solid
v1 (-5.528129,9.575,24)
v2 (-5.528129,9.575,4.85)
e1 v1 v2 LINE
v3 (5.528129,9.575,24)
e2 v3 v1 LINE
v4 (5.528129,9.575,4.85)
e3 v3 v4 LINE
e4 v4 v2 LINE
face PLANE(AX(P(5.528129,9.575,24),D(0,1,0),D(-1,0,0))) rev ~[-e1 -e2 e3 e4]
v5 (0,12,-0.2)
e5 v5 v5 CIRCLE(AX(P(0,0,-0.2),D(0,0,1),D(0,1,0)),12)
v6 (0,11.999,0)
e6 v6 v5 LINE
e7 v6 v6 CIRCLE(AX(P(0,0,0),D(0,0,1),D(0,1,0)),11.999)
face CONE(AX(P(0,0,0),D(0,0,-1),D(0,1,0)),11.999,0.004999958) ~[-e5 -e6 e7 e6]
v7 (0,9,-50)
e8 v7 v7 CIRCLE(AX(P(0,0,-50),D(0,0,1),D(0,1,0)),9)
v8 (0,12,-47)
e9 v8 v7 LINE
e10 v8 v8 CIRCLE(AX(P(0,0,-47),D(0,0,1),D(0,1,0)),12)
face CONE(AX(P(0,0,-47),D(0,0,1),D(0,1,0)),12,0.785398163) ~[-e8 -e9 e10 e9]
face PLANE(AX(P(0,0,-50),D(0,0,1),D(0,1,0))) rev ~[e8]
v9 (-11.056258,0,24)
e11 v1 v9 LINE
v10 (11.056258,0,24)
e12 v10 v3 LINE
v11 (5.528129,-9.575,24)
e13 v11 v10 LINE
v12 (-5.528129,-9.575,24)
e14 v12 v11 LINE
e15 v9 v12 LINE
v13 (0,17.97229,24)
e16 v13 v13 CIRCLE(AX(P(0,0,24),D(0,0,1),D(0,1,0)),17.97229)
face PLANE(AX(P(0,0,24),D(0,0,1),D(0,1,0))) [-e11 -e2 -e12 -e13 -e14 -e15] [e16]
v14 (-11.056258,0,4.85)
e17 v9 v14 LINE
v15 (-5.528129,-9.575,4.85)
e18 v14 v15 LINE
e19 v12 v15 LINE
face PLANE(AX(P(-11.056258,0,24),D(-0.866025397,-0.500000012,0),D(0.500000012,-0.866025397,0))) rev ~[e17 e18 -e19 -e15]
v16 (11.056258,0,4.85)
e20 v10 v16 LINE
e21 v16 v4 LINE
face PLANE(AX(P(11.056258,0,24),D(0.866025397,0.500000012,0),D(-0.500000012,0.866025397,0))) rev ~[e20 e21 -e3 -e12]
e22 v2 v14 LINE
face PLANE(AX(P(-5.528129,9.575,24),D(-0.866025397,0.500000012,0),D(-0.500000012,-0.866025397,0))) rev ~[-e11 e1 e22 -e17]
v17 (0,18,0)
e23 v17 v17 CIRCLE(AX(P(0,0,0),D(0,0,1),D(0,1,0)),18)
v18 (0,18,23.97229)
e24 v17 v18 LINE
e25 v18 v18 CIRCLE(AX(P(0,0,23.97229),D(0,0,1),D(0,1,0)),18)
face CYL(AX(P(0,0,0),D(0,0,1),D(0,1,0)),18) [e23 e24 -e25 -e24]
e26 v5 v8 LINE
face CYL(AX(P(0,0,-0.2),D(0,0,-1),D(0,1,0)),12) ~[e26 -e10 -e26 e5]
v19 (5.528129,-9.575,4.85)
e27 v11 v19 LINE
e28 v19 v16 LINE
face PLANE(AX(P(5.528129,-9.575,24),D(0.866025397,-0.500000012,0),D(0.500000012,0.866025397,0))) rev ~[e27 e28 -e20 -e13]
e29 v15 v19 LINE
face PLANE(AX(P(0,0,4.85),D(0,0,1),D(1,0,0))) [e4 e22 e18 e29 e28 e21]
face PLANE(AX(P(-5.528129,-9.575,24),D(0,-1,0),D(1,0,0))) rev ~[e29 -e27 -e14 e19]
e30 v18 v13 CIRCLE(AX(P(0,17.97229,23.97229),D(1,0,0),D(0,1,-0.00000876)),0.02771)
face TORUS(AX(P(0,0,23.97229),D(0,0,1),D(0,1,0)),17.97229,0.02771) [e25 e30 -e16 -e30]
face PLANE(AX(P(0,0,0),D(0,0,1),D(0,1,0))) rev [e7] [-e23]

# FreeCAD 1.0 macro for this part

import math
import FreeCAD as App
import Part
import Sketcher
Q = App.Units.Quantity


def add_polygon(sketch, points):
    """Adds a closed chain of lines whose ends are joined by coincident constraints."""
    first, n = sketch.GeometryCount, len(points)
    for a, b in zip(points, points[1:] + points[:1]):
        sketch.addGeometry(Part.LineSegment(App.Vector(*a, 0), App.Vector(*b, 0)), False)
    for i in range(n):
        sketch.addConstraint(Sketcher.Constraint("Coincident", first + i, 2, first + (i + 1) % n, 1))

doc = App.newDocument("Part")
body = doc.addObject("PartDesign::Body", "Body")

sketch1 = body.newObject("Sketcher::SketchObject", "Sketch")
sketch1.AttachmentSupport = (doc.getObject("YZ_Plane"), [""])
sketch1.MapMode = "FlatFace"
sketch1.addGeometry([
    Part.LineSegment(App.Vector(11.999, 0, 0), App.Vector(18, 0, 0)),
    Part.LineSegment(App.Vector(18, 0, 0), App.Vector(18, 23.972, 0)),
    Part.ArcOfCircle(Part.Circle(App.Vector(17.972, 23.972, 0), App.Vector(0, 0, 1), 0.028), math.radians(0), math.radians(90)),
    Part.LineSegment(App.Vector(17.972, 24, 0), App.Vector(0, 24, 0)),
    Part.LineSegment(App.Vector(0, 24, 0), App.Vector(0, -50, 0)),
    Part.LineSegment(App.Vector(0, -50, 0), App.Vector(9, -50, 0)),
    Part.LineSegment(App.Vector(9, -50, 0), App.Vector(12, -47, 0)),
    Part.LineSegment(App.Vector(12, -47, 0), App.Vector(12, -0.2, 0)),
    Part.LineSegment(App.Vector(12, -0.2, 0), App.Vector(11.999, 0, 0)),
], False)
sketch1.addConstraint([
    Sketcher.Constraint("Coincident", 0, 2, 1, 1),
    Sketcher.Constraint("Coincident", 1, 2, 2, 1),
    Sketcher.Constraint("Coincident", 2, 2, 3, 1),
    Sketcher.Constraint("Coincident", 3, 2, 4, 1),
    Sketcher.Constraint("Coincident", 4, 2, 5, 1),
    Sketcher.Constraint("Coincident", 5, 2, 6, 1),
    Sketcher.Constraint("Coincident", 6, 2, 7, 1),
    Sketcher.Constraint("Coincident", 7, 2, 8, 1),
    Sketcher.Constraint("Coincident", 8, 2, 0, 1),
    Sketcher.Constraint("Horizontal", 0),
    Sketcher.Constraint("Vertical", 1),
    Sketcher.Constraint("Horizontal", 3),
    Sketcher.Constraint("Vertical", 4),
    Sketcher.Constraint("Horizontal", 5),
    Sketcher.Constraint("Vertical", 7),
    Sketcher.Constraint("PointOnObject", 0, 2, -1),
    Sketcher.Constraint("PointOnObject", 3, 2, -2),
    Sketcher.Constraint("Horizontal", 2, 3, 1, 2),
    Sketcher.Constraint("DistanceX", 5, 1, 5, 2, Q("9 mm")),
    Sketcher.Constraint("DistanceY", 4, 2, 4, 1, Q("74 mm")),
    Sketcher.Constraint("Angle", 6, Q("45 deg")),
    Sketcher.Constraint("DistanceY", 7, 1, 7, 2, Q("46.8 mm")),
    Sketcher.Constraint("DistanceX", -1, 1, 0, 2, Q("18 mm")),
    Sketcher.Constraint("DistanceY", -1, 1, 2, 2, Q("24 mm")),
    Sketcher.Constraint("DistanceX", -1, 1, 6, 2, Q("12 mm")),
    Sketcher.Constraint("DistanceX", 0, 1, 0, 2, Q("6.001 mm")),
    Sketcher.Constraint("Radius", 2, Q("0.02771 mm")),
    Sketcher.Constraint("DistanceX", 3, 2, 3, 1, Q("17.97229 mm")),
])
revolution = body.newObject("PartDesign::Revolution", "Revolution")
revolution.Profile = sketch1
revolution.ReferenceAxis = (sketch1, ["V_Axis"])
revolution.Angle = 360

sketch2 = body.newObject("Sketcher::SketchObject", "Sketch001")
sketch2.AttachmentSupport = (doc.getObject("XY_Plane"), [""])
sketch2.MapMode = "FlatFace"
sketch2.AttachmentOffset = App.Placement(App.Vector(0, 0, 24), App.Rotation())
add_polygon(sketch2, [(11, 0), (6, 10), (-6, 10), (-11, 0), (-6, -10), (6, -10)])
sketch2.addConstraint([
    Sketcher.Constraint("Horizontal", 1),
    Sketcher.Constraint("Horizontal", 4),
    Sketcher.Constraint("Symmetric", 0, 2, 3, 2, -1, 1),
    Sketcher.Constraint("Symmetric", 2, 2, 5, 2, -1, 1),
    Sketcher.Constraint("PointOnObject", 2, 2, -1),
    Sketcher.Constraint("Parallel", 2, 5),
    Sketcher.Constraint("Vertical", 1, 2, 3, 2),
    Sketcher.Constraint("Angle", 0, Q("120.000001 deg")),
    Sketcher.Constraint("DistanceY", 3, 2, 1, 2, Q("19.15 mm")),
    Sketcher.Constraint("DistanceX", 1, 2, 1, 1, Q("11.056258 mm")),
])
pocket1 = body.newObject("PartDesign::Pocket", "Pocket")
pocket1.Profile = sketch2
pocket1.Length = 19.15

doc.recompute()
